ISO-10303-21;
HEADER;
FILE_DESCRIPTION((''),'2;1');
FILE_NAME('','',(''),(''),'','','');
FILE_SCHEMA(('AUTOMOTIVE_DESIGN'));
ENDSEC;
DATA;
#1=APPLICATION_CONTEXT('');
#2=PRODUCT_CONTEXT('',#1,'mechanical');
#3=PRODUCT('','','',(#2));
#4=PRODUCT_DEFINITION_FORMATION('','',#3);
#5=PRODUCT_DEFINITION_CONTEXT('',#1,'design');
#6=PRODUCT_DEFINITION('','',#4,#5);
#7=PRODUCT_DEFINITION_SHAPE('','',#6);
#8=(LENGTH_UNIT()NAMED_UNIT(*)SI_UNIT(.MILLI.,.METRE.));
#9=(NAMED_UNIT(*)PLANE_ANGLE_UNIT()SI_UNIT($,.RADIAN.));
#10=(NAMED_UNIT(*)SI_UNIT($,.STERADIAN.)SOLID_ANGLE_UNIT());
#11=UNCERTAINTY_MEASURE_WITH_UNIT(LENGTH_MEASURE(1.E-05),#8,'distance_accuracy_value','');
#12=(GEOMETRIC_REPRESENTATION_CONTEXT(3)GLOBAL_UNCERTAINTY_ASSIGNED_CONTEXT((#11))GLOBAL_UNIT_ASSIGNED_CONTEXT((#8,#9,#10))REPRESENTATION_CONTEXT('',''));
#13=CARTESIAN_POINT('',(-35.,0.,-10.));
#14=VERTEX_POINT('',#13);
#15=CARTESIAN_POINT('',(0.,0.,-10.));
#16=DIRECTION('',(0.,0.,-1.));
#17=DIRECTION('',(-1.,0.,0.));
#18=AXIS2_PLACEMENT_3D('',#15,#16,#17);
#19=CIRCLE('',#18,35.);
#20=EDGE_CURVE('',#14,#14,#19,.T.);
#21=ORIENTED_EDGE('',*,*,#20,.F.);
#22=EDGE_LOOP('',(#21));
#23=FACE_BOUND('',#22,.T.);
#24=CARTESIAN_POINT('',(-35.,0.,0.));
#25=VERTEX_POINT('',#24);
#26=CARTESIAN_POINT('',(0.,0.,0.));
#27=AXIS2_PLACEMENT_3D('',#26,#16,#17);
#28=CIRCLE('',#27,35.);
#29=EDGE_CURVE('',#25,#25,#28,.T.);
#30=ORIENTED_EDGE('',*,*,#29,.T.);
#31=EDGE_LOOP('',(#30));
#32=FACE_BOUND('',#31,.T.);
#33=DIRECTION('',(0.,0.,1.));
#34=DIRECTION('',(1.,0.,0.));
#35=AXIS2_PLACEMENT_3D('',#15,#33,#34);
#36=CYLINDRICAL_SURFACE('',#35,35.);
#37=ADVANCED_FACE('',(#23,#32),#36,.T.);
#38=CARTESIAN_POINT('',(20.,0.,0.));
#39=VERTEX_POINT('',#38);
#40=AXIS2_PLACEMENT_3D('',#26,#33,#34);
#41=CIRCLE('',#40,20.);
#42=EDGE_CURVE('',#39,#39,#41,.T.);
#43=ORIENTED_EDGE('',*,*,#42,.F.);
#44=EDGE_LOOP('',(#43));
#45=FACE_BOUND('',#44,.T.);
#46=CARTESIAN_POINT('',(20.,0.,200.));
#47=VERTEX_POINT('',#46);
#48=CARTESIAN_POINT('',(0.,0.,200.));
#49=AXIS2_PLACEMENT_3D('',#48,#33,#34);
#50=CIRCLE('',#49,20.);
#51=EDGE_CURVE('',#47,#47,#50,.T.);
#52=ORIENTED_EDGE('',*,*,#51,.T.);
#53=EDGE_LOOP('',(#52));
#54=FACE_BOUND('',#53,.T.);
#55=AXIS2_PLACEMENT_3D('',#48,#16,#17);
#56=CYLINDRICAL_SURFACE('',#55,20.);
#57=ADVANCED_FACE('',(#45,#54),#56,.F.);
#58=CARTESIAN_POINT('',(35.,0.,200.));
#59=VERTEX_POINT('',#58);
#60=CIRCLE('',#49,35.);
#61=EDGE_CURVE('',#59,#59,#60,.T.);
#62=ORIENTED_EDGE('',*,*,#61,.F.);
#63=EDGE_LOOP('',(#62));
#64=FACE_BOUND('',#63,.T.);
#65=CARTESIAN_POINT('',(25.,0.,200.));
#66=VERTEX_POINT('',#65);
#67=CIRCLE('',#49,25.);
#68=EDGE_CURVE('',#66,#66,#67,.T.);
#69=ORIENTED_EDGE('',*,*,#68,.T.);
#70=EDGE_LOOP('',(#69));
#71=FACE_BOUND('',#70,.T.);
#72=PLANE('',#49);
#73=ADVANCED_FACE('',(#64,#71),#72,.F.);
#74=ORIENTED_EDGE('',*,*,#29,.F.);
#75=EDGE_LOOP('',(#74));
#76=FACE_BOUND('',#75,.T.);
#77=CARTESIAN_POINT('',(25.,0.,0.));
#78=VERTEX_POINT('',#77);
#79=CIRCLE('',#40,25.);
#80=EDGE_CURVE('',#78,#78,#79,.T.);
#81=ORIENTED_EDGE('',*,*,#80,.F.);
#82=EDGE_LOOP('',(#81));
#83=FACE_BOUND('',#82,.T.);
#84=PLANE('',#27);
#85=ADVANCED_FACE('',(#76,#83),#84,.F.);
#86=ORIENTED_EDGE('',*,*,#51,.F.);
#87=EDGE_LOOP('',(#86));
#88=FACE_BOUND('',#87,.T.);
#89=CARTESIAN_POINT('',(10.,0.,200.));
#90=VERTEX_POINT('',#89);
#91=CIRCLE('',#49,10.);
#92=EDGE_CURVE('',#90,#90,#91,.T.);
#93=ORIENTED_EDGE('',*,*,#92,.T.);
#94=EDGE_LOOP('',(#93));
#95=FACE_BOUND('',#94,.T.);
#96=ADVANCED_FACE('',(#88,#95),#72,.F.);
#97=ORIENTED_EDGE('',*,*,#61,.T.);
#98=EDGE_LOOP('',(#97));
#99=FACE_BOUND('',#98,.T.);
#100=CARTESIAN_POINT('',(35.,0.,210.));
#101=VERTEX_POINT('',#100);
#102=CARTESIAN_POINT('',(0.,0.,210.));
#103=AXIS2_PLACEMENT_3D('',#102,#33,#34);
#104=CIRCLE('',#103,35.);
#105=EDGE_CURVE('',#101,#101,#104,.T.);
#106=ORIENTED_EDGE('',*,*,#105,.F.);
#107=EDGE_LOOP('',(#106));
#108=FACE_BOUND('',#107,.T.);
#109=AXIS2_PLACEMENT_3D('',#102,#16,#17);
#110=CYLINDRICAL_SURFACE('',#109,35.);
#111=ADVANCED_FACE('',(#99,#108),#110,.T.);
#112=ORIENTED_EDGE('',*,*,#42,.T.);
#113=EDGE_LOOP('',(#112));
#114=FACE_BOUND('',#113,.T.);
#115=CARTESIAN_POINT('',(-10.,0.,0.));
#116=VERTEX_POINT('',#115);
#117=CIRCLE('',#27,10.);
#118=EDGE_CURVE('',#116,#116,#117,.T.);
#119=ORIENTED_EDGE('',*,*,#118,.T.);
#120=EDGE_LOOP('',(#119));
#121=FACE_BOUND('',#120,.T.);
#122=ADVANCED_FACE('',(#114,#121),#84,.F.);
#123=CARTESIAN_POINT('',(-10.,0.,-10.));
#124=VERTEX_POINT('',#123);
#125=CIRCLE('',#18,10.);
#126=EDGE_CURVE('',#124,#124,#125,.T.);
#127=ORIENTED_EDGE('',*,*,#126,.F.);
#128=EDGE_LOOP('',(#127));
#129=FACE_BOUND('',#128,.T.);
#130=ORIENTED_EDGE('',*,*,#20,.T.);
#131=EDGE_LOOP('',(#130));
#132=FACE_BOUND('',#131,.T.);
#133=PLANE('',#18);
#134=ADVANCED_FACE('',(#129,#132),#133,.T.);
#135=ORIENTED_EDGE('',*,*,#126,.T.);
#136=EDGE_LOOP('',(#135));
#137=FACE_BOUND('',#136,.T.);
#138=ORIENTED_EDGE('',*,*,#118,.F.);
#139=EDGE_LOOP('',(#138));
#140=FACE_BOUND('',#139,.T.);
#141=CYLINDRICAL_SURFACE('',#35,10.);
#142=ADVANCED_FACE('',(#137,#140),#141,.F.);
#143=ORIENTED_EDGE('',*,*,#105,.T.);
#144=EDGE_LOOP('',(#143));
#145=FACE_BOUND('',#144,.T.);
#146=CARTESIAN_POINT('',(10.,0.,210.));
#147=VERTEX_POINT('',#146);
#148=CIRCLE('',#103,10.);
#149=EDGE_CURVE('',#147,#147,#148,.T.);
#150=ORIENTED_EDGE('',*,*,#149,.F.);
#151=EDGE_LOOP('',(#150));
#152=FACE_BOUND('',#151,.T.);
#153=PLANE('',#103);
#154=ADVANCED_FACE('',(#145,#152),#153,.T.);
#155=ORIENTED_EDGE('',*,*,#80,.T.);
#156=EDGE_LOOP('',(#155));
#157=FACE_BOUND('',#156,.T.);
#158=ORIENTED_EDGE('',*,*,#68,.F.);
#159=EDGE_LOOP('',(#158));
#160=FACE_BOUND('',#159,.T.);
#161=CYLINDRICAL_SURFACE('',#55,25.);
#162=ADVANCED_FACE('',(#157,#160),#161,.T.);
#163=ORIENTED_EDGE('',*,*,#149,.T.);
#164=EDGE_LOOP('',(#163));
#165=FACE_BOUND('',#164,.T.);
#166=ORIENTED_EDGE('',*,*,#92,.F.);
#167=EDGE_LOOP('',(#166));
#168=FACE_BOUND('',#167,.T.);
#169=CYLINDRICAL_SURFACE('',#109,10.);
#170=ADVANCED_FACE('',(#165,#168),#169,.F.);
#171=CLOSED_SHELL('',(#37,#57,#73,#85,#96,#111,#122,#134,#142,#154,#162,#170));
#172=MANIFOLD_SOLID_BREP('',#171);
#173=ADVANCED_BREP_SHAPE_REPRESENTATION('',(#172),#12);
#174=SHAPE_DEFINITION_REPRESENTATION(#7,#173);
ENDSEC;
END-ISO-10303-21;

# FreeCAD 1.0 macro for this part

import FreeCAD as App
import Part
import Sketcher
from FreeCAD import Vector

doc = App.newDocument("Part")
body = doc.addObject("PartDesign::Body", "Body")

# Sketch on XY plane
sketch1 = body.newObject("Sketcher::SketchObject", "Sketch")
sketch1.AttachmentSupport = (doc.getObject("XY_Plane"), [""])
sketch1.MapMode = "FlatFace"
sketch1.addGeometry([
    Part.Circle(Vector(0, 0, 0), Vector(0, 0, 1), 25),
    Part.Circle(Vector(0, 0, 0), Vector(0, 0, 1), 20),
], False)
sketch1.addConstraint([
    Sketcher.Constraint("Coincident", 0, 3, -1, 1),
    Sketcher.Constraint("Coincident", 1, 3, -1, 1),
    Sketcher.Constraint("Diameter", 0, 50.0),
    Sketcher.Constraint("Diameter", 1, 40.0),
])
pad1 = body.newObject("PartDesign::Pad", "Pad")
pad1.Profile = sketch1
pad1.Length = 200

# Sketch on XY plane
sketch2 = body.newObject("Sketcher::SketchObject", "Sketch001")
sketch2.AttachmentSupport = (doc.getObject("XY_Plane"), [""])
sketch2.MapMode = "FlatFace"
sketch2.AttachmentOffset = App.Placement(Vector(0, 0, 200), App.Rotation())
sketch2.addGeometry([
    Part.Circle(Vector(0, 0, 0), Vector(0, 0, 1), 35),
    Part.Circle(Vector(0, 0, 0), Vector(0, 0, 1), 10),
], False)
sketch2.addConstraint([
    Sketcher.Constraint("Coincident", 0, 3, -1, 1),
    Sketcher.Constraint("Coincident", 1, 3, -1, 1),
    Sketcher.Constraint("Diameter", 0, 70.0),
    Sketcher.Constraint("Diameter", 1, 20.0),
])
pad2 = body.newObject("PartDesign::Pad", "Pad001")
pad2.Profile = sketch2
pad2.Length = 10

# Sketch on XY plane
sketch3 = body.newObject("Sketcher::SketchObject", "Sketch002")
sketch3.AttachmentSupport = (doc.getObject("XY_Plane"), [""])
sketch3.MapMode = "FlatFace"
sketch3.AttachmentOffset = App.Placement(Vector(0, 0, -10), App.Rotation())
sketch3.addGeometry([
    Part.Circle(Vector(0, 0, 0), Vector(0, 0, 1), 35),
    Part.Circle(Vector(0, 0, 0), Vector(0, 0, 1), 10),
], False)
sketch3.addConstraint([
    Sketcher.Constraint("Coincident", 0, 3, -1, 1),
    Sketcher.Constraint("Coincident", 1, 3, -1, 1),
    Sketcher.Constraint("Diameter", 0, 70.0),
    Sketcher.Constraint("Diameter", 1, 20.0),
])
pad3 = body.newObject("PartDesign::Pad", "Pad002")
pad3.Profile = sketch3
pad3.Length = 10

doc.recompute()
